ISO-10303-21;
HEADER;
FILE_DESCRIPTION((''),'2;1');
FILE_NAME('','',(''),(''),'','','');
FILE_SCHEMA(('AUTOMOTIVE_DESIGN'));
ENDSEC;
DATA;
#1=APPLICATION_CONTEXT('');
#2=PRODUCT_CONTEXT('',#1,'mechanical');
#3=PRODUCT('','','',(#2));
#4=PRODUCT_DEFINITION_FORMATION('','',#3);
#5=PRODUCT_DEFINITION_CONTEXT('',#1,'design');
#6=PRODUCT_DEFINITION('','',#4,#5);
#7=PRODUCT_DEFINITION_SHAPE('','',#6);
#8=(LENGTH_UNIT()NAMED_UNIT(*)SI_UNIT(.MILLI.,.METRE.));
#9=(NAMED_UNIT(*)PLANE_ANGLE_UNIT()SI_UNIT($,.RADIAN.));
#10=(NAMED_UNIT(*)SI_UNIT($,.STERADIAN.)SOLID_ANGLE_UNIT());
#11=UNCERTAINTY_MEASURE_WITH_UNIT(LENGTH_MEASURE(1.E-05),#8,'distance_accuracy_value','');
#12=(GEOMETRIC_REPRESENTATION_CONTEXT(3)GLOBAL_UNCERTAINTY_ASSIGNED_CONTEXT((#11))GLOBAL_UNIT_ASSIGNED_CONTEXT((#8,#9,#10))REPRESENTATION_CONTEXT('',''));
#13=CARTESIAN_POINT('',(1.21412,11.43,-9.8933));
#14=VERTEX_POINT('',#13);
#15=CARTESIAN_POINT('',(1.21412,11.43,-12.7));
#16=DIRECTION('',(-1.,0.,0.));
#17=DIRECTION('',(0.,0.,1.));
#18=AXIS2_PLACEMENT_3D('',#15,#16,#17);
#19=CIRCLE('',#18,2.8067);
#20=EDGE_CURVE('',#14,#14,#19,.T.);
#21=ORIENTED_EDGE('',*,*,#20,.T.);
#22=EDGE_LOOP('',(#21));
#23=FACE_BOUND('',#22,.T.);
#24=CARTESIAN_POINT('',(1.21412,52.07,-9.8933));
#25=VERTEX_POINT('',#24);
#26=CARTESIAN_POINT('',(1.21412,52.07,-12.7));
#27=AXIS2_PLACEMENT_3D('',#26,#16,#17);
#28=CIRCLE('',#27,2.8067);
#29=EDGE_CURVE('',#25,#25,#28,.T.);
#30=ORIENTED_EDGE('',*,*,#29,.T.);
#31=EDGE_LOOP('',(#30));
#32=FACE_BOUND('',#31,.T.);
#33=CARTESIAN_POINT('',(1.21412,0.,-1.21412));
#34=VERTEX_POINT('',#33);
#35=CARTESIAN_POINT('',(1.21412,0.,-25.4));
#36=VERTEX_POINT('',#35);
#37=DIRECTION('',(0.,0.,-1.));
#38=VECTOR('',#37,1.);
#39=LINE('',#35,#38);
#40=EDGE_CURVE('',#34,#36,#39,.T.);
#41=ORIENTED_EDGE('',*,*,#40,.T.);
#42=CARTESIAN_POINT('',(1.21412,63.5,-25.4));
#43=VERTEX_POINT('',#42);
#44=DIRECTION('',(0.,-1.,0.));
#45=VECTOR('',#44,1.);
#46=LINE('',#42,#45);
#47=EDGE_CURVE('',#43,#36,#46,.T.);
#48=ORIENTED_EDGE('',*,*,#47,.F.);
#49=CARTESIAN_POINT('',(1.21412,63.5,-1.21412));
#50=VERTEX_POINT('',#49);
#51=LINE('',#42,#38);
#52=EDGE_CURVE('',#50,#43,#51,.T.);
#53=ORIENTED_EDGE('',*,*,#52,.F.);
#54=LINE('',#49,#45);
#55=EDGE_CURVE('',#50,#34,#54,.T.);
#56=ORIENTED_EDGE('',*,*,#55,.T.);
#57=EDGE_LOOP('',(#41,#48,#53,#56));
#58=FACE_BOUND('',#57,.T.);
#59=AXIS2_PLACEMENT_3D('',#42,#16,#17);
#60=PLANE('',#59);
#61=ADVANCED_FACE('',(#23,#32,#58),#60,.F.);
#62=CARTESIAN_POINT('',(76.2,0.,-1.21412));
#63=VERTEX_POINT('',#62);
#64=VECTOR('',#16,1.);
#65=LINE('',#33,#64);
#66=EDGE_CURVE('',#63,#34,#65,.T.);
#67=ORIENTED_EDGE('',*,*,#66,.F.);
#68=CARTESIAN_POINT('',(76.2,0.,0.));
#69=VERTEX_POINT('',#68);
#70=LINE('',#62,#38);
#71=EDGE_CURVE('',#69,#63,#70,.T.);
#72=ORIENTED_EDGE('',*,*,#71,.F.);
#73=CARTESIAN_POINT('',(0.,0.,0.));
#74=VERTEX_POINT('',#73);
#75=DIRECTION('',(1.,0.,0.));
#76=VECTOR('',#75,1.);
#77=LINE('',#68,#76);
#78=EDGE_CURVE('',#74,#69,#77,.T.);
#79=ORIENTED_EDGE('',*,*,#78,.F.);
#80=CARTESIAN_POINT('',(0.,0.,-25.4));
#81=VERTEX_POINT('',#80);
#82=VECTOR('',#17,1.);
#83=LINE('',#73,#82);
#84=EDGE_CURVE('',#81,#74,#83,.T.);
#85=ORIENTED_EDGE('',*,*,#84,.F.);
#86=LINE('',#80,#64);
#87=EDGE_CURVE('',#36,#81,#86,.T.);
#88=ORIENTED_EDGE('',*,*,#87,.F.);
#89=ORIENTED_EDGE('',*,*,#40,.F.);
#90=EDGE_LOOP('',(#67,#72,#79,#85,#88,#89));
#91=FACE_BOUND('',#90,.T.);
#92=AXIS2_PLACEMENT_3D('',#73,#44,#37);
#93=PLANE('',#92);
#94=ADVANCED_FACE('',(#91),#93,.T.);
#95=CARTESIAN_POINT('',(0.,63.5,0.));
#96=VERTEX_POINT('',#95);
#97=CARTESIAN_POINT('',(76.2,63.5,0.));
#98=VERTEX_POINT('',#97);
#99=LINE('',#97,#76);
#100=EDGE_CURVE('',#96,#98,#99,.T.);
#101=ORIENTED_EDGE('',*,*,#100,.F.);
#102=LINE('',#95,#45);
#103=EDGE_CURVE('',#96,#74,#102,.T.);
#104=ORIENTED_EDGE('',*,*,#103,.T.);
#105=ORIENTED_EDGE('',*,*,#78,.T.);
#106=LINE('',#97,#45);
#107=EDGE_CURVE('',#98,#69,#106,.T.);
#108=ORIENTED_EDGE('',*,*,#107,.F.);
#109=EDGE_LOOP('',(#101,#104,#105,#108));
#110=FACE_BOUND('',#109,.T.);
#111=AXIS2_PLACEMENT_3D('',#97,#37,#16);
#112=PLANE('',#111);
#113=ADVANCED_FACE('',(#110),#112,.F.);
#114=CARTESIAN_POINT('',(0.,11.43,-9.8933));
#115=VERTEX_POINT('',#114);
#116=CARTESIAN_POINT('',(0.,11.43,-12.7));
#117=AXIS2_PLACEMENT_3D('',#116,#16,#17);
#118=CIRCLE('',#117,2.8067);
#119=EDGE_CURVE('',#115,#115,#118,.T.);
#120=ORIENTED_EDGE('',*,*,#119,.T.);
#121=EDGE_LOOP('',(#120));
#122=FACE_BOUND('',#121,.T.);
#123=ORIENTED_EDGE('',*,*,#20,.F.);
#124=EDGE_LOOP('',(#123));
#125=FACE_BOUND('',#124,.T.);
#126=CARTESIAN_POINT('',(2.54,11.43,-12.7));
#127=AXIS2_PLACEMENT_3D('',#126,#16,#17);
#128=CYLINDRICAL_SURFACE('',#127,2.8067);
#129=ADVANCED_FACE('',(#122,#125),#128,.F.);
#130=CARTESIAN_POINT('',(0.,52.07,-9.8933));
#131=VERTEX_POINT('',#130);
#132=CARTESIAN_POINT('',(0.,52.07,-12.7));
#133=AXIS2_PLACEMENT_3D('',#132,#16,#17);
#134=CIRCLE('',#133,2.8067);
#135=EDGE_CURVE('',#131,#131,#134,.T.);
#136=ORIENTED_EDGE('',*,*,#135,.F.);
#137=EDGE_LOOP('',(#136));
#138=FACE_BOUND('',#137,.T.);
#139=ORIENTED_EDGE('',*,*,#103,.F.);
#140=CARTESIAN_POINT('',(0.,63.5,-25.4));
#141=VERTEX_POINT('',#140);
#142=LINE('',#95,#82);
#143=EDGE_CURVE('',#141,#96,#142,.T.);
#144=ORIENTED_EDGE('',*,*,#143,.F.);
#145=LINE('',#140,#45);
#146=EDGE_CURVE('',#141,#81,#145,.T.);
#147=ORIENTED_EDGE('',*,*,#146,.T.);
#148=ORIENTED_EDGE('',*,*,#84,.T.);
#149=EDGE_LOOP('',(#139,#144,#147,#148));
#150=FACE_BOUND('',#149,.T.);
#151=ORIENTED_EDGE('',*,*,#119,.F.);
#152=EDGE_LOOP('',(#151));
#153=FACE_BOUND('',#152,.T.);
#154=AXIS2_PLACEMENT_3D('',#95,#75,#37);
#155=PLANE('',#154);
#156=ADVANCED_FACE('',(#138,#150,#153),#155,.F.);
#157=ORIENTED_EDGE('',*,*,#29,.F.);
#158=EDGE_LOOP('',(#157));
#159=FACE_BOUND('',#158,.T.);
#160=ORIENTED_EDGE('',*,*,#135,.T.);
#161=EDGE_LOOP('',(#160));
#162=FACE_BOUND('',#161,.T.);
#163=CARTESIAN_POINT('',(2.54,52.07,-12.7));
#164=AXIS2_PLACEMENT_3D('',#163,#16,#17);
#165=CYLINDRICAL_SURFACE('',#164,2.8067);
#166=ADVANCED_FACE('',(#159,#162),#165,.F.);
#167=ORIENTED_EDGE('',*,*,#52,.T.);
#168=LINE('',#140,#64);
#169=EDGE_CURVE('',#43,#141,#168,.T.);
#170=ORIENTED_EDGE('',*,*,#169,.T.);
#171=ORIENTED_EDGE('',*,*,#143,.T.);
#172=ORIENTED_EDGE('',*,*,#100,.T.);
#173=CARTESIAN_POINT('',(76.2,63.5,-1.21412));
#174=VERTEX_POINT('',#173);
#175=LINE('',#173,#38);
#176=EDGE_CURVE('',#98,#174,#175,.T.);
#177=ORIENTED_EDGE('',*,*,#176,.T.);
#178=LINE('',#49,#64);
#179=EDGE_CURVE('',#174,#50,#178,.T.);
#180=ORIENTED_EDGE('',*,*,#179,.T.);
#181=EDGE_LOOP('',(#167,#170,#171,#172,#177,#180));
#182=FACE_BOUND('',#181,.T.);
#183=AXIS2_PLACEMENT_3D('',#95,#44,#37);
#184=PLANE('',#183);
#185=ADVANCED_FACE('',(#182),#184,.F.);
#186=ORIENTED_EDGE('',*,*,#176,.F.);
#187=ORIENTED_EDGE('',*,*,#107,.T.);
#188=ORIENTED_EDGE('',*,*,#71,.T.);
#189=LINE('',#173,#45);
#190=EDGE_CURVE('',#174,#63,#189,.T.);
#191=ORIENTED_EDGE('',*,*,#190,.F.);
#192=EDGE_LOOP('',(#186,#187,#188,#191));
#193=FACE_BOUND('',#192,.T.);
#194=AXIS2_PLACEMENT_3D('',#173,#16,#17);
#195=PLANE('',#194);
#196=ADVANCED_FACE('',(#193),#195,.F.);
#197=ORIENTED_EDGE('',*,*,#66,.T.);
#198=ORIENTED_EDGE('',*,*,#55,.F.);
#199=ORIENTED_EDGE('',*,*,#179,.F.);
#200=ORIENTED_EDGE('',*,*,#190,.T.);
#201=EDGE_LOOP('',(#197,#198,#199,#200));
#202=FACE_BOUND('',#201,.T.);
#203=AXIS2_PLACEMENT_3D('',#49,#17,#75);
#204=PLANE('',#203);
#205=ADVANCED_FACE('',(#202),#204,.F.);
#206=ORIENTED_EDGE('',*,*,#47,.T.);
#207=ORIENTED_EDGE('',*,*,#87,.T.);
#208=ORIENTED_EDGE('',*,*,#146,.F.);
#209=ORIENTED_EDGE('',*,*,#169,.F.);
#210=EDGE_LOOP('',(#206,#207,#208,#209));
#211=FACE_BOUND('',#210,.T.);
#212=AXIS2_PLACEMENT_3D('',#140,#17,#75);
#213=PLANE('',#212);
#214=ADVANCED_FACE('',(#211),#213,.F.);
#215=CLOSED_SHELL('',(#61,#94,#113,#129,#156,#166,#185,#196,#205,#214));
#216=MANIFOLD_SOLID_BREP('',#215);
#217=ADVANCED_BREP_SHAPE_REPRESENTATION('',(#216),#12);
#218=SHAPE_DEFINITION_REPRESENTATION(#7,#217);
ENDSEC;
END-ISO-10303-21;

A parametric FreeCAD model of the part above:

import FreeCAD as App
import Part
import Sketcher
Q = App.Units.Quantity

doc = App.newDocument("Part")
body = doc.addObject("PartDesign::Body", "Body")

# Sketch on XZ plane
sketch1 = doc.addObject("Sketcher::SketchObject", "Sketch")
body.addObject(sketch1)
sketch1.AttachmentSupport = (doc.XZ_Plane, [""])
sketch1.MapMode = "FlatFace"
sketch1.addGeometry([
    Part.LineSegment(App.Vector(0, -25.4, 0), App.Vector(0, 0, 0)),  # 0
    Part.LineSegment(App.Vector(0, 0, 0), App.Vector(76.2, 0, 0)),  # 1
    Part.LineSegment(App.Vector(76.2, 0, 0), App.Vector(76.2, -1.2, 0)),  # 2
    Part.LineSegment(App.Vector(76.2, -1.2, 0), App.Vector(1.2, -1.2, 0)),  # 3
    Part.LineSegment(App.Vector(1.2, -1.2, 0), App.Vector(1.2, -25.4, 0)),  # 4
    Part.LineSegment(App.Vector(1.2, -25.4, 0), App.Vector(0, -25.4, 0)),  # 5
], False)
sketch1.addConstraint([
    Sketcher.Constraint("Coincident", 0, 2, 1, 1),
    Sketcher.Constraint("Coincident", 1, 2, 2, 1),
    Sketcher.Constraint("Coincident", 2, 2, 3, 1),
    Sketcher.Constraint("Coincident", 3, 2, 4, 1),
    Sketcher.Constraint("Coincident", 4, 2, 5, 1),
    Sketcher.Constraint("Coincident", 5, 2, 0, 1),
    Sketcher.Constraint("Vertical", 0),
    Sketcher.Constraint("Horizontal", 1),
    Sketcher.Constraint("Vertical", 2),
    Sketcher.Constraint("Horizontal", 3),
    Sketcher.Constraint("Vertical", 4),
    Sketcher.Constraint("Horizontal", 5),
    Sketcher.Constraint("Coincident", 0, 2, -1, 1),
    Sketcher.Constraint("Equal", 5, 2),
    Sketcher.Constraint("DistanceX", 1, 1, 1, 2, Q("3 in")),
    Sketcher.Constraint("DistanceY", 0, 1, 0, 2, Q("1 in")),
    Sketcher.Constraint("DistanceX", 3, 2, 3, 1, Q("2.9522 in")),
])
pad1 = doc.addObject("PartDesign::Pad", "Pad")
body.addObject(pad1)
pad1.Profile = sketch1
pad1.Length = Q("2.5 in")
pad1.Reversed = True

# Sketch on YZ plane
sketch2 = doc.addObject("Sketcher::SketchObject", "Sketch001")
body.addObject(sketch2)
sketch2.AttachmentSupport = (doc.YZ_Plane, [""])
sketch2.MapMode = "FlatFace"
sketch2.addGeometry([
    Part.Circle(App.Vector(52.1, -12.7, 0), App.Vector(0, 0, 1), 2.8),
    Part.Circle(App.Vector(11.4, -12.7, 0), App.Vector(0, 0, 1), 2.8),
], False)
sketch2.addConstraint([
    Sketcher.Constraint("Equal", 0, 1),
    Sketcher.Constraint("Horizontal", 0, 3, 1, 3),
    Sketcher.Constraint("Diameter", 0, Q("0.221 in")),
    Sketcher.Constraint("DistanceY", 0, 3, -1, 1, Q("0.5 in")),
    Sketcher.Constraint("DistanceX", 1, 3, 0, 3, Q("1.6 in")),
    Sketcher.Constraint("DistanceX", -1, 1, 0, 3, Q("2.05 in")),
])
pocket1 = doc.addObject("PartDesign::Pocket", "Pocket")
body.addObject(pocket1)
pocket1.Profile = sketch2
pocket1.Length = Q("0.1 in")
pocket1.Reversed = True

doc.recompute()
